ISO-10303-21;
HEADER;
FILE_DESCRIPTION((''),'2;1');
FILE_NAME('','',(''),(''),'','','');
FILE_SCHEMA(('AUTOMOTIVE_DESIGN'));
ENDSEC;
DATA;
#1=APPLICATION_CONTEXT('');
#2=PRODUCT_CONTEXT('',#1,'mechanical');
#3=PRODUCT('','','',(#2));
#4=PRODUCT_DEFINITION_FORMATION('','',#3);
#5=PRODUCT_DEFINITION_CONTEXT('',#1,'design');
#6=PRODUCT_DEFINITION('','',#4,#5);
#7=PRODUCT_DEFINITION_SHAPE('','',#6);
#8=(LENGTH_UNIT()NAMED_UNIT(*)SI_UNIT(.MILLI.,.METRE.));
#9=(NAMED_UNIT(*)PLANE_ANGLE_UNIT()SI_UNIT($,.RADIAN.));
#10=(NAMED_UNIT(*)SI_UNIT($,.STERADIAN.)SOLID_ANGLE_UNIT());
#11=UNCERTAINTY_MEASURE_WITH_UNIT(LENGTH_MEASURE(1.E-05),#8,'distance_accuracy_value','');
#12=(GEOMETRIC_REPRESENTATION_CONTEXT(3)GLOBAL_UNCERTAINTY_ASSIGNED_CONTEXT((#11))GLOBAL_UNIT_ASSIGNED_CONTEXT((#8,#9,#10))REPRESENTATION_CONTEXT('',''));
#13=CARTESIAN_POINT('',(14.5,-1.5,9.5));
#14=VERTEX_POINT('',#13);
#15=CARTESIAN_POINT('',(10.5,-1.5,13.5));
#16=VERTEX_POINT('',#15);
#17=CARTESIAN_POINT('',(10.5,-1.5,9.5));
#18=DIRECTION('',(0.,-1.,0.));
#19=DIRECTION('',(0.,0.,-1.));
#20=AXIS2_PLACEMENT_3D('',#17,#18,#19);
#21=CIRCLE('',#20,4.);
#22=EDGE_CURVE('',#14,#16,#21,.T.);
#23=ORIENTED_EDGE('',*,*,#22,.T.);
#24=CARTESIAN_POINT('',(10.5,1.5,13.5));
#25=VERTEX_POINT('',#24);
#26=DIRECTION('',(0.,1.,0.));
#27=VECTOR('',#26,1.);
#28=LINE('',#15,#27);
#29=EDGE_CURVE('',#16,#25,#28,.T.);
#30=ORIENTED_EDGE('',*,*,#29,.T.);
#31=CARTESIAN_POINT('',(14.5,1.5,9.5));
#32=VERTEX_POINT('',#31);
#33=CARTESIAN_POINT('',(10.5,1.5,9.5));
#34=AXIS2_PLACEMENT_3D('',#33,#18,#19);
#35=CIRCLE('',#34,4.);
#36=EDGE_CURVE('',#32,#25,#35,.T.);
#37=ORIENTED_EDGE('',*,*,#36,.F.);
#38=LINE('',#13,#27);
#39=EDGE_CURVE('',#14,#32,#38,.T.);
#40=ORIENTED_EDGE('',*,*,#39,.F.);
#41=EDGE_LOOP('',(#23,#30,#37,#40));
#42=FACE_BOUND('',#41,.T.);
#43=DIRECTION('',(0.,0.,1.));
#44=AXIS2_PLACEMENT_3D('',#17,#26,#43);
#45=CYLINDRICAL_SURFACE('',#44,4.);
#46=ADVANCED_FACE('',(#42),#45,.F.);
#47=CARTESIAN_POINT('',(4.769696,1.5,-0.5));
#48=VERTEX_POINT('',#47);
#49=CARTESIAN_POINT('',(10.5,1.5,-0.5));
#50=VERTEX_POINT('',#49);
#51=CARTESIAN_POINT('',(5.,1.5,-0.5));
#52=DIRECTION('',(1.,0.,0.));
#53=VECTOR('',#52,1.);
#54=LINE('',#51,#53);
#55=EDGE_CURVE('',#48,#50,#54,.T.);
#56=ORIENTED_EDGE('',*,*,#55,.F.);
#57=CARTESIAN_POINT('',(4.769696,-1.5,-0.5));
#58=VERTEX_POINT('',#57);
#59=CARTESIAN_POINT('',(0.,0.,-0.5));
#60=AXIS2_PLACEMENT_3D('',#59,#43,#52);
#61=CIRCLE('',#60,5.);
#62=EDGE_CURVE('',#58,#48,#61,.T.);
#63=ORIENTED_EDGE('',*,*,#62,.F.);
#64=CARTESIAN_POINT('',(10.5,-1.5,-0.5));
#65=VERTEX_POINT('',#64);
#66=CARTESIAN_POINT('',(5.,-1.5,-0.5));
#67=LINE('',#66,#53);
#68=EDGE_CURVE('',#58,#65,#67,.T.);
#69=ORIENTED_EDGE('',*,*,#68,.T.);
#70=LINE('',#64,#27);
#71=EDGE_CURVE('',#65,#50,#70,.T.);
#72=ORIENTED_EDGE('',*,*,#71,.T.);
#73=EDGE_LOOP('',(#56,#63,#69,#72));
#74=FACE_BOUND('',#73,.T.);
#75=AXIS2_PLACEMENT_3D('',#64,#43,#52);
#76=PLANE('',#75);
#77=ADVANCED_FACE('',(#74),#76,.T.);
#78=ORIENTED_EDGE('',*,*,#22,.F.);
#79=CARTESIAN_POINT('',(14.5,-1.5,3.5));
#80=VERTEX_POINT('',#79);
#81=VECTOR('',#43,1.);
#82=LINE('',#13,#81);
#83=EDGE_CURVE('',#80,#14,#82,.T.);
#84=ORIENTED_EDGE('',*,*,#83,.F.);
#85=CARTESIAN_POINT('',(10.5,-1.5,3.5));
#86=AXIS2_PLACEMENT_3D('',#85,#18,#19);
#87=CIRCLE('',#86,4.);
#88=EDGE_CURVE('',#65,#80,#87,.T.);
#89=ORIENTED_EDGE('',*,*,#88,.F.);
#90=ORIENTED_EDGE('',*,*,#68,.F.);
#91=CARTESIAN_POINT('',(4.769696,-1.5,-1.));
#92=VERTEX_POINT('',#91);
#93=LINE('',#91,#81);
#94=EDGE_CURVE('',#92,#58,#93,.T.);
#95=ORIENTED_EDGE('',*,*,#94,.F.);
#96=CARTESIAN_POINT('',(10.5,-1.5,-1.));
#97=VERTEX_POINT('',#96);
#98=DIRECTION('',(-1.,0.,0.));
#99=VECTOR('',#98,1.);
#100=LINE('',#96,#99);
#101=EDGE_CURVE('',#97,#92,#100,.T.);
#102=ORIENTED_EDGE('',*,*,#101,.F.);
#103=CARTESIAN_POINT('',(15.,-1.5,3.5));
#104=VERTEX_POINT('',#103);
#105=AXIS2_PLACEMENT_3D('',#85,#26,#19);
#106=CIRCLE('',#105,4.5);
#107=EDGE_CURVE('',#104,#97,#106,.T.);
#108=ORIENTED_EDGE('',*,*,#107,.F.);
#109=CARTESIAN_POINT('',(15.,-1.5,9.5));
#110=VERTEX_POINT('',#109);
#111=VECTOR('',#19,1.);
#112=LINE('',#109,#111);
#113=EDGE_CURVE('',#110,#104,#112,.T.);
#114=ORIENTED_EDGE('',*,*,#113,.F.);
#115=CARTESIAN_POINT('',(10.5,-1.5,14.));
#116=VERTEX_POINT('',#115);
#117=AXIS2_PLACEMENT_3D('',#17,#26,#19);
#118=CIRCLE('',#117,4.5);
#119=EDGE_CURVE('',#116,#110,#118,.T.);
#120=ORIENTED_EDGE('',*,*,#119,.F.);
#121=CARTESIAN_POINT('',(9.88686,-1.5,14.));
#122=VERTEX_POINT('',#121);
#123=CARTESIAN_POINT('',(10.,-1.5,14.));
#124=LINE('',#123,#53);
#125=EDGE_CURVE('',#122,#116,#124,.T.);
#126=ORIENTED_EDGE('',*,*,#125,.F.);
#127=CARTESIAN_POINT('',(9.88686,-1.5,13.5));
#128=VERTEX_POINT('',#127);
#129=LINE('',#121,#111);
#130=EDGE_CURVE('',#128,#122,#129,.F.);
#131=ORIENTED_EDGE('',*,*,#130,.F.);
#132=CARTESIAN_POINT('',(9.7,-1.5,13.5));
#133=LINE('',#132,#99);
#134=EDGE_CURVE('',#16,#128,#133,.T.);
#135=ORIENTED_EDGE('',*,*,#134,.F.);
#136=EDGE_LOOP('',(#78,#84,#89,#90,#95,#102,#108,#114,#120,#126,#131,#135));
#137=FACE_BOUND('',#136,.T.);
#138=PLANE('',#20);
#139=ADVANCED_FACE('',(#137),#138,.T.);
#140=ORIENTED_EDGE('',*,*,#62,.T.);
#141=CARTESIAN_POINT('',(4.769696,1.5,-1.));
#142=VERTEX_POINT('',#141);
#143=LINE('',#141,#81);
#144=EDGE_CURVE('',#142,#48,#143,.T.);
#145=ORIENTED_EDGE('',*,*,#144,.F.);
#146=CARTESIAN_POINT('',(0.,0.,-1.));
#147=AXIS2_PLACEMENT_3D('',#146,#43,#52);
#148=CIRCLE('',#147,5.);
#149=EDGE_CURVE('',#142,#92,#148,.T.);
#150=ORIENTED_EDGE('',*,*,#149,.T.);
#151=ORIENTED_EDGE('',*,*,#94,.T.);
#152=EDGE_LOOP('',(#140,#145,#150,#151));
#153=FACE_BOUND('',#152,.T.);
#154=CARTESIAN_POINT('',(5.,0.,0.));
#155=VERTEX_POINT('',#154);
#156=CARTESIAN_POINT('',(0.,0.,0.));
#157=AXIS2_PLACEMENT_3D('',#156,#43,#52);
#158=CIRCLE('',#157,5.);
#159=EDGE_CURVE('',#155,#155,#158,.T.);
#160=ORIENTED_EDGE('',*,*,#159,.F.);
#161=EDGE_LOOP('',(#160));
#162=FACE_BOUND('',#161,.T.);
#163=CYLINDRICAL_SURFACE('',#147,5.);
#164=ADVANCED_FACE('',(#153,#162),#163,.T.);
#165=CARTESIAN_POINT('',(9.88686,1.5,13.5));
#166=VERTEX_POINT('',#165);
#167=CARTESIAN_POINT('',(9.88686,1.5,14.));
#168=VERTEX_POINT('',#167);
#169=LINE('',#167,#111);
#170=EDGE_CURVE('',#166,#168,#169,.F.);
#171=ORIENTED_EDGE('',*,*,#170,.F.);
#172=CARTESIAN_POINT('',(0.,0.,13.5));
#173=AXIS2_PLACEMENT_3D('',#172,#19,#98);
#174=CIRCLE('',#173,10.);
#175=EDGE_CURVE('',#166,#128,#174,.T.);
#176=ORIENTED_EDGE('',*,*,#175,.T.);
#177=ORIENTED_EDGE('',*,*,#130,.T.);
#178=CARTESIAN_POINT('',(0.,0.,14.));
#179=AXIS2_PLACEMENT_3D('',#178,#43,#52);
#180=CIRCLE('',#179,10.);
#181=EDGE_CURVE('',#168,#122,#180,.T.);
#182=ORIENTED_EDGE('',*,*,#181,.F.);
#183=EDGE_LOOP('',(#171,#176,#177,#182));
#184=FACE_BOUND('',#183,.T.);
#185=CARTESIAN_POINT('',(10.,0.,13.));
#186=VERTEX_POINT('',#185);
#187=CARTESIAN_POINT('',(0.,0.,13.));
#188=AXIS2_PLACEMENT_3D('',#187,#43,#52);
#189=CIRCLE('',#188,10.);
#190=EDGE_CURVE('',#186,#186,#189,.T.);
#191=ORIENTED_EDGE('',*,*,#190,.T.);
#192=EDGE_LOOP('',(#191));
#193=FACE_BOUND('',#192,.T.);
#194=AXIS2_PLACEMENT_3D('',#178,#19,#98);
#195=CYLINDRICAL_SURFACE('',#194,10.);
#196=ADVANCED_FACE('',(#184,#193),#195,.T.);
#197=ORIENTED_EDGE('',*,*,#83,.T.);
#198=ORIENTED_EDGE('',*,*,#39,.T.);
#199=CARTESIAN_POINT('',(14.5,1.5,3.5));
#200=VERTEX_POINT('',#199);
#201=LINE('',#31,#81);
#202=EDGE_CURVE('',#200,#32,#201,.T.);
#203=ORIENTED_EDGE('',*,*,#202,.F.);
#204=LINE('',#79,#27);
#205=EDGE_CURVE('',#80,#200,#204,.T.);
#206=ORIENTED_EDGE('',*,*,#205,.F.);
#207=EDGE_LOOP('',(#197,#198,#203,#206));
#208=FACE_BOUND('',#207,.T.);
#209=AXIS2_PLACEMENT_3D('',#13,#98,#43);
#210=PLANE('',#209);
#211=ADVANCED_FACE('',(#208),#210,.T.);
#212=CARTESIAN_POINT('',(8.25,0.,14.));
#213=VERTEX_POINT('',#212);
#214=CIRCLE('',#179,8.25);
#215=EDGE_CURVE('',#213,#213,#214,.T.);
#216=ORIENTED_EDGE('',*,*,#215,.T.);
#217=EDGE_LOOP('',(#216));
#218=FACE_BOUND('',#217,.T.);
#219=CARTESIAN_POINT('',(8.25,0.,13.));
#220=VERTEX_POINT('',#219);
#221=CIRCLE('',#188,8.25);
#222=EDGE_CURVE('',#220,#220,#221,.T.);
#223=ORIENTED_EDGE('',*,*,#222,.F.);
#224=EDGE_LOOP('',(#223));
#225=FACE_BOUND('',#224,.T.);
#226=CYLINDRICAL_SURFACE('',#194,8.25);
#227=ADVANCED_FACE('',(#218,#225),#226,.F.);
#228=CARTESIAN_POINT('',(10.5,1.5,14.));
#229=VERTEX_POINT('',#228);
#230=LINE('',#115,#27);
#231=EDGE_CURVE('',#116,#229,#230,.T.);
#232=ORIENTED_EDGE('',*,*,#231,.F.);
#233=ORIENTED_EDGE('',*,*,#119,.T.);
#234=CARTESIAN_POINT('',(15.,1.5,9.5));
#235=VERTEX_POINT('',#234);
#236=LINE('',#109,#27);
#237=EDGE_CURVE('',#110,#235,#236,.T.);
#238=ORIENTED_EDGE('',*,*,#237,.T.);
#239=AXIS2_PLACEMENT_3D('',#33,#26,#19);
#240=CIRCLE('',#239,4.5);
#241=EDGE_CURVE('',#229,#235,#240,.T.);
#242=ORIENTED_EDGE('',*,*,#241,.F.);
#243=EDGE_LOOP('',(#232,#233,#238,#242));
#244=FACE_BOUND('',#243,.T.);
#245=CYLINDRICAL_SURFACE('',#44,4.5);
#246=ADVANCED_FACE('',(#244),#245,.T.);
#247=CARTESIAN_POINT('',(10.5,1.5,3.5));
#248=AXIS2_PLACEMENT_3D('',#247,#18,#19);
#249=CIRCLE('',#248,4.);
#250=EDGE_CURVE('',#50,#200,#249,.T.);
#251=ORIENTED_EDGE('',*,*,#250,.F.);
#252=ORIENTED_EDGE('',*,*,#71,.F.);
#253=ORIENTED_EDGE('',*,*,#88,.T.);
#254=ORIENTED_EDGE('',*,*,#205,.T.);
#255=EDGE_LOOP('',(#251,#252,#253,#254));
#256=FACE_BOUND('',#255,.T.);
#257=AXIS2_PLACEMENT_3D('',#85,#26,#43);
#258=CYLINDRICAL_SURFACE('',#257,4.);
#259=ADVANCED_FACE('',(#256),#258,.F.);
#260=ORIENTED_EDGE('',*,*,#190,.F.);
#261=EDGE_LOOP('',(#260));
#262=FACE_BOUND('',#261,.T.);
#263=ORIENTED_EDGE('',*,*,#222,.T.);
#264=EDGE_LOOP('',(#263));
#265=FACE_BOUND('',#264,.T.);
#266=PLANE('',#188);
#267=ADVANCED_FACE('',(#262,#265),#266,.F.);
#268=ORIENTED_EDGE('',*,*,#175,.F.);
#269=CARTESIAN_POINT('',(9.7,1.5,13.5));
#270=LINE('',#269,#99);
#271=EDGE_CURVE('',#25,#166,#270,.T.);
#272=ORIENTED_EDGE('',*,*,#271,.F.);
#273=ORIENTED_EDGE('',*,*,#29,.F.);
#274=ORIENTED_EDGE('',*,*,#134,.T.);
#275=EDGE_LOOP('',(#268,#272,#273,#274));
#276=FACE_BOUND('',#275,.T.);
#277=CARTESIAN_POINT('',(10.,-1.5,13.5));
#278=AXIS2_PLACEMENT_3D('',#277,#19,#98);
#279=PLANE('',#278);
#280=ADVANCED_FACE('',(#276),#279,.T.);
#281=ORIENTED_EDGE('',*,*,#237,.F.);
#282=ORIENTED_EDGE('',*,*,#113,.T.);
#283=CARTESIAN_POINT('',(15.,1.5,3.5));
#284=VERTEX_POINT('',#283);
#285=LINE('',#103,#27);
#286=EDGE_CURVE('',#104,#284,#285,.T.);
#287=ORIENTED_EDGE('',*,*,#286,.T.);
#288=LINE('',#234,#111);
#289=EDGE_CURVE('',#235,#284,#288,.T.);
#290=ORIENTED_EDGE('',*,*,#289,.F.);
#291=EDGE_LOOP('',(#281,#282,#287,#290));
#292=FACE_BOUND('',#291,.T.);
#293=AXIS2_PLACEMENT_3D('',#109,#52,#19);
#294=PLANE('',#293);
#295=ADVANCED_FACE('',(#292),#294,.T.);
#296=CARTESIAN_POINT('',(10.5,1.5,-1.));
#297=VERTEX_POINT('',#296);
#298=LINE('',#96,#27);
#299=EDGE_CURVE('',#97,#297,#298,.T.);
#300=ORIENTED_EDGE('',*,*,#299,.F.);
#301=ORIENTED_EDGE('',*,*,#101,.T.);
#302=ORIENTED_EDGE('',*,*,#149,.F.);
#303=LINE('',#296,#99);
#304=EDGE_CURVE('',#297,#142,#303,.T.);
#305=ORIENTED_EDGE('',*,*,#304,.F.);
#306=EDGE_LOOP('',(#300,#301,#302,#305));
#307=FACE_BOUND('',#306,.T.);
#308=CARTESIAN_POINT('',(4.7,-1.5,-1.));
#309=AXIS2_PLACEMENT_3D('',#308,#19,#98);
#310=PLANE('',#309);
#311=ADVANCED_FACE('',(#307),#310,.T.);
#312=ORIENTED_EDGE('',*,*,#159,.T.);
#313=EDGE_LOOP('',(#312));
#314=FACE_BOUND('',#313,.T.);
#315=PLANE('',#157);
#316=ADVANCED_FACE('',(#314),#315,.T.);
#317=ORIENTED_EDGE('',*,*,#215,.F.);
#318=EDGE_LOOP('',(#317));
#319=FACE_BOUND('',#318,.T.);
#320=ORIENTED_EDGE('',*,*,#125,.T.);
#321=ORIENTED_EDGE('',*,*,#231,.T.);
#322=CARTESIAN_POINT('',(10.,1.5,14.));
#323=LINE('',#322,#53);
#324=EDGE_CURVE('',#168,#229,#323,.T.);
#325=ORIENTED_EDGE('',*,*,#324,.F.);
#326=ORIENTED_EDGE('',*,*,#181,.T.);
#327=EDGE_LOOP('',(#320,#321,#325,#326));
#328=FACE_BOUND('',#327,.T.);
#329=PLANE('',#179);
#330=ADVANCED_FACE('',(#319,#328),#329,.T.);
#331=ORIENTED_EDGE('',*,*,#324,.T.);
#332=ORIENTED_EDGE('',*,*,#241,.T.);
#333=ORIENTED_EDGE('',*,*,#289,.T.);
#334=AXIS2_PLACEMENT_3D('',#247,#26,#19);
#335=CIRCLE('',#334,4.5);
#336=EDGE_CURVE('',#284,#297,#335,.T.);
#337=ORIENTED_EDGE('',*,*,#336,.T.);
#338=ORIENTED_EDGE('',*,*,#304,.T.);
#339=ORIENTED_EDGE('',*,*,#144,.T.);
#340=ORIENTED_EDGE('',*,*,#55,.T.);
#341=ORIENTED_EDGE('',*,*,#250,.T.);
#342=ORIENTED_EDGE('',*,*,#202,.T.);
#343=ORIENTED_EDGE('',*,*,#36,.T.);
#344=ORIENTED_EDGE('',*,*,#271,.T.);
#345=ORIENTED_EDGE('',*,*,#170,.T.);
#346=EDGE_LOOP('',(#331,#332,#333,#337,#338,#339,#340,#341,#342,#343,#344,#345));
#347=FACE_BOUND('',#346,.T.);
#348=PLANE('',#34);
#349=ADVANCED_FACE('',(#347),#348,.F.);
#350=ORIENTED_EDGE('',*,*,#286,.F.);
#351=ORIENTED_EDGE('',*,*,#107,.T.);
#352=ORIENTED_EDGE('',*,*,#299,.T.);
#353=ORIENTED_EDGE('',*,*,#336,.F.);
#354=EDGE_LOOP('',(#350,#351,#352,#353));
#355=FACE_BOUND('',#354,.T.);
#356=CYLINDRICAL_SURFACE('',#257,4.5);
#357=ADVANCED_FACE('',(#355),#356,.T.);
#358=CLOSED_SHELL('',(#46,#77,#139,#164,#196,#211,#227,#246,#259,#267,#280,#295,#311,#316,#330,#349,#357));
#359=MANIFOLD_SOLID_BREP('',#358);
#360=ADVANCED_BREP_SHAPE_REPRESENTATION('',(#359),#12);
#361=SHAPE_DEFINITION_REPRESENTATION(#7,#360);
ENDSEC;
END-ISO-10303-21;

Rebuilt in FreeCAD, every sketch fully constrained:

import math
import FreeCAD as App
import Part
import Sketcher

doc = App.newDocument("Part")
body = doc.addObject("PartDesign::Body", "Body")

# Sketch on XY plane
sketch1 = doc.addObject("Sketcher::SketchObject", "Sketch")
body.addObject(sketch1)
sketch1.AttachmentSupport = (doc.XY_Plane, [""])
sketch1.MapMode = "FlatFace"
sketch1.AttachmentOffset = App.Placement(App.Vector(0, 0, 13), App.Rotation())
sketch1.addGeometry([
    Part.Circle(App.Vector(0, 0, 0), App.Vector(0, 0, 1), 10),
    Part.Circle(App.Vector(0, 0, 0), App.Vector(0, 0, 1), 8),
], False)
sketch1.addConstraint([
    Sketcher.Constraint("Coincident", 0, 3, -1, 1),
    Sketcher.Constraint("Coincident", 1, 3, -1, 1),
    Sketcher.Constraint("Diameter", 0, 20.0),
    Sketcher.Constraint("Diameter", 1, 16.5),
])
pad1 = doc.addObject("PartDesign::Pad", "Pad")
body.addObject(pad1)
pad1.Profile = sketch1
pad1.Length = 1
body2 = doc.addObject("PartDesign::Body", "Body001")

# Sketch on XY plane
sketch2 = doc.addObject("Sketcher::SketchObject", "Sketch001")
body2.addObject(sketch2)
sketch2.AttachmentSupport = (doc.getObject("XY_Plane001"), [""])
sketch2.MapMode = "FlatFace"
sketch2.addGeometry(Part.Circle(App.Vector(0, 0, 0), App.Vector(0, 0, 1), 5), False)
sketch2.addConstraint([
    Sketcher.Constraint("Coincident", 0, 3, -1, 1),
    Sketcher.Constraint("Diameter", 0, 10.0),
])
pad2 = doc.addObject("PartDesign::Pad", "Pad001")
body2.addObject(pad2)
pad2.Profile = sketch2
pad2.Length = 1
pad2.Reversed = True
body.AllowCompound = True
doc.recompute()

boolean = doc.addObject("PartDesign::Boolean", "Boolean")
body.addObject(boolean)
boolean.Type = "Fuse"
boolean.addObjects([body2])

# Sketch on XZ plane
sketch3 = doc.addObject("Sketcher::SketchObject", "Sketch002")
body.addObject(sketch3)
sketch3.AttachmentSupport = (doc.XZ_Plane, [""])
sketch3.MapMode = "FlatFace"
sketch3.addGeometry([
    Part.ArcOfCircle(Part.Circle(App.Vector(10.5, 9.5, 0), App.Vector(0, 0, 1), 4), math.radians(0), math.radians(90)),  # 0
    Part.LineSegment(App.Vector(10.5, 13.5, 0), App.Vector(9.7, 13.5, 0)),  # 1
    Part.LineSegment(App.Vector(9.7, 13.5, 0), App.Vector(9.7, 14, 0)),  # 2
    Part.LineSegment(App.Vector(9.7, 14, 0), App.Vector(10.5, 14, 0)),  # 3
    Part.ArcOfCircle(Part.Circle(App.Vector(10.5, 9.5, 0), App.Vector(0, 0, 1), 4.5), math.radians(0), math.radians(90)),  # 4
    Part.LineSegment(App.Vector(15, 9.5, 0), App.Vector(15, 3.5, 0)),  # 5
    Part.ArcOfCircle(Part.Circle(App.Vector(10.5, 3.5, 0), App.Vector(0, 0, 1), 4.5), math.radians(-90), math.radians(0)),  # 6
    Part.LineSegment(App.Vector(10.5, -1, 0), App.Vector(4.7, -1, 0)),  # 7
    Part.LineSegment(App.Vector(4.7, -1, 0), App.Vector(4.7, -0.5, 0)),  # 8
    Part.LineSegment(App.Vector(4.7, -0.5, 0), App.Vector(10.5, -0.5, 0)),  # 9
    Part.ArcOfCircle(Part.Circle(App.Vector(10.5, 3.5, 0), App.Vector(0, 0, 1), 4), math.radians(-90), math.radians(0)),  # 10
    Part.LineSegment(App.Vector(14.5, 3.5, 0), App.Vector(14.5, 9.5, 0)),  # 11
], False)
sketch3.addConstraint([
    Sketcher.Constraint("Tangent", 0, 2, 1, 1),
    Sketcher.Constraint("Coincident", 1, 2, 2, 1),
    Sketcher.Constraint("Coincident", 2, 2, 3, 1),
    Sketcher.Constraint("Tangent", 3, 2, 4, 2),
    Sketcher.Constraint("Tangent", 4, 1, 5, 1),
    Sketcher.Constraint("Tangent", 5, 2, 6, 2),
    Sketcher.Constraint("Tangent", 6, 1, 7, 1),
    Sketcher.Constraint("Coincident", 7, 2, 8, 1),
    Sketcher.Constraint("Coincident", 8, 2, 9, 1),
    Sketcher.Constraint("Tangent", 9, 2, 10, 1),
    Sketcher.Constraint("Tangent", 10, 2, 11, 1),
    Sketcher.Constraint("Tangent", 11, 2, 0, 1),
    Sketcher.Constraint("Horizontal", 1),
    Sketcher.Constraint("Vertical", 2),
    Sketcher.Constraint("Horizontal", 3),
    Sketcher.Constraint("Vertical", 5),
    Sketcher.Constraint("Horizontal", 7),
    Sketcher.Constraint("Vertical", 8),
    Sketcher.Constraint("Horizontal", 9),
    Sketcher.Constraint("Vertical", 11),
    Sketcher.Constraint("Coincident", 4, 3, 0, 3),
    Sketcher.Constraint("Coincident", 10, 3, 6, 3),
    Sketcher.Constraint("Equal", 4, 6),
    Sketcher.Constraint("Radius", 0, 4.0),
    Sketcher.Constraint("Radius", 4, 4.5),
    Sketcher.Constraint("DistanceY", 5, 2, 5, 1, 6.0),
    Sketcher.Constraint("DistanceX", 1, 2, 1, 1, 0.8),
    Sketcher.Constraint("DistanceX", 7, 2, 7, 1, 5.8),
    Sketcher.Constraint("DistanceY", -1, 1, 2, 2, 14.0),
    Sketcher.Constraint("DistanceX", -1, 1, 4, 1, 15.0),
])
pad3 = doc.addObject("PartDesign::Pad", "Pad002")
body.addObject(pad3)
pad3.Profile = sketch3
pad3.Type = "TwoLengths"
pad3.Length = 1.5
pad3.Length2 = 1.5
pad3.Reversed = True

doc.recompute()
